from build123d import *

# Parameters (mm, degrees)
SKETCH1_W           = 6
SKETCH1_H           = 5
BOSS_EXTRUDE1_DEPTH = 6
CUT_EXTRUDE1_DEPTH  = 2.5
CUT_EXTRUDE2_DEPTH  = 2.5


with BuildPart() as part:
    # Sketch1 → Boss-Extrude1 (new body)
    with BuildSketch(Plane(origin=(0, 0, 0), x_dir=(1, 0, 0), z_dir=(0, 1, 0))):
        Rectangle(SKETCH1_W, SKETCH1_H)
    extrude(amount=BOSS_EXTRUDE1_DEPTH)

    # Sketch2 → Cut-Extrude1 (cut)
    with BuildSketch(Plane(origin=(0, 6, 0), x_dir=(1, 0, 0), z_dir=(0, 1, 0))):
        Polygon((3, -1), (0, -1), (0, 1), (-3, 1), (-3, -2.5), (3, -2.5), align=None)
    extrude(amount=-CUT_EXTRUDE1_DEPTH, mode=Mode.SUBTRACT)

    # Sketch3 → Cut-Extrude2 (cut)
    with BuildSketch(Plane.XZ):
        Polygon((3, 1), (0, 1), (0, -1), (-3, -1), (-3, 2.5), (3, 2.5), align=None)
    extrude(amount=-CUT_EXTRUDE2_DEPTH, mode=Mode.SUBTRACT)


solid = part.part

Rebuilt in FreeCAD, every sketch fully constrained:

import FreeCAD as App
import Part
import Sketcher

V = App.Vector

doc = App.newDocument("Part")
params = doc.addObject("Spreadsheet::Sheet", "Params")
for row, (alias, value) in enumerate([
    ("sketch1_width", "6 mm"),
    ("sketch1_height", "5 mm"),
    ("pad1_length", "6 mm"),
    ("sketch2_width", "3 mm"),
    ("sketch2_height", "2 mm"),
    ("sketch2_height2", "3.5 mm"),
    ("pocket1_length", "2.5 mm"),
    ("sketch3_width", "3 mm"),
    ("sketch3_height", "2 mm"),
    ("sketch3_height2", "1.5 mm"),
    ("pocket2_length", "2.5 mm"),
], start=1):
    params.set(f"A{row}", alias)
    params.set(f"B{row}", "=" + value)
    params.setAlias(f"B{row}", alias)

body = doc.addObject("PartDesign::Body", "Body")

sketch1 = body.newObject("Sketcher::SketchObject", "Sketch")
sketch1.AttachmentSupport = (doc.getObject("XZ_Plane"), [""])
sketch1.MapMode = "FlatFace"
sketch1.addGeometry([
    Part.LineSegment(V(-3, -2, 0), V(-3, 2, 0)),
    Part.LineSegment(V(-3, 2, 0), V(3, 2, 0)),
    Part.LineSegment(V(3, 2, 0), V(3, -2, 0)),
    Part.LineSegment(V(3, -2, 0), V(-3, -2, 0)),
], False)
sketch1.addConstraint([
    Sketcher.Constraint("Coincident", 0, 2, 1, 1),
    Sketcher.Constraint("Coincident", 1, 2, 2, 1),
    Sketcher.Constraint("Coincident", 2, 2, 3, 1),
    Sketcher.Constraint("Coincident", 3, 2, 0, 1),
    Sketcher.Constraint("Vertical", 0),
    Sketcher.Constraint("Horizontal", 1),
    Sketcher.Constraint("Vertical", 2),
    Sketcher.Constraint("Horizontal", 3),
    Sketcher.Constraint("Symmetric", 0, 2, 2, 2, -1, 1),
    Sketcher.Constraint("DistanceX", 1, 1, 1, 2, 6.0),
    Sketcher.Constraint("DistanceY", 0, 1, 0, 2, 5.0),
])
sketch1.setExpression("Constraints[9]", "Params.sketch1_width")
sketch1.setExpression("Constraints[10]", "Params.sketch1_height")
pad1 = body.newObject("PartDesign::Pad", "Pad")
pad1.Profile = sketch1
pad1.setExpression("Length", "Params.pad1_length")
pad1.Reversed = True

sketch2 = body.newObject("Sketcher::SketchObject", "Sketch001")
sketch2.AttachmentSupport = (doc.getObject("XZ_Plane"), [""])
sketch2.MapMode = "FlatFace"
sketch2.AttachmentOffset = App.Placement(V(0, 0, -6), App.Rotation())
sketch2.addGeometry([
    Part.LineSegment(V(3, 1, 0), V(0, 1, 0)),
    Part.LineSegment(V(0, 1, 0), V(0, -1, 0)),
    Part.LineSegment(V(0, -1, 0), V(-3, -1, 0)),
    Part.LineSegment(V(-3, -1, 0), V(-3, 2.5, 0)),
    Part.LineSegment(V(-3, 2.5, 0), V(3, 2.5, 0)),
    Part.LineSegment(V(3, 2.5, 0), V(3, 1, 0)),
], False)
sketch2.addConstraint([
    Sketcher.Constraint("Coincident", 0, 2, 1, 1),
    Sketcher.Constraint("Coincident", 1, 2, 2, 1),
    Sketcher.Constraint("Coincident", 2, 2, 3, 1),
    Sketcher.Constraint("Coincident", 3, 2, 4, 1),
    Sketcher.Constraint("Coincident", 4, 2, 5, 1),
    Sketcher.Constraint("Coincident", 5, 2, 0, 1),
    Sketcher.Constraint("Horizontal", 0),
    Sketcher.Constraint("Vertical", 1),
    Sketcher.Constraint("Horizontal", 2),
    Sketcher.Constraint("Vertical", 3),
    Sketcher.Constraint("Horizontal", 4),
    Sketcher.Constraint("Vertical", 5),
    Sketcher.Constraint("Symmetric", 0, 2, 1, 2, -1, 1),
    Sketcher.Constraint("Equal", 0, 2),
    Sketcher.Constraint("DistanceX", 0, 2, 0, 1, 3.0),
    Sketcher.Constraint("DistanceY", 1, 2, 1, 1, 2.0),
    Sketcher.Constraint("DistanceY", 3, 1, 3, 2, 3.5),
])
sketch2.setExpression("Constraints[14]", "Params.sketch2_width")
sketch2.setExpression("Constraints[15]", "Params.sketch2_height")
sketch2.setExpression("Constraints[16]", "Params.sketch2_height2")
pocket1 = body.newObject("PartDesign::Pocket", "Pocket")
pocket1.Profile = sketch2
pocket1.setExpression("Length", "Params.pocket1_length")
pocket1.Reversed = True

sketch3 = body.newObject("Sketcher::SketchObject", "Sketch002")
sketch3.AttachmentSupport = (doc.getObject("XZ_Plane"), [""])
sketch3.MapMode = "FlatFace"
sketch3.addGeometry([
    Part.LineSegment(V(0, 1, 0), V(3, 1, 0)),
    Part.LineSegment(V(3, 1, 0), V(3, 2.5, 0)),
    Part.LineSegment(V(3, 2.5, 0), V(-3, 2.5, 0)),
    Part.LineSegment(V(-3, 2.5, 0), V(-3, -1, 0)),
    Part.LineSegment(V(-3, -1, 0), V(0, -1, 0)),
    Part.LineSegment(V(0, -1, 0), V(0, 1, 0)),
], False)
sketch3.addConstraint([
    Sketcher.Constraint("Coincident", 0, 2, 1, 1),
    Sketcher.Constraint("Coincident", 1, 2, 2, 1),
    Sketcher.Constraint("Coincident", 2, 2, 3, 1),
    Sketcher.Constraint("Coincident", 3, 2, 4, 1),
    Sketcher.Constraint("Coincident", 4, 2, 5, 1),
    Sketcher.Constraint("Coincident", 5, 2, 0, 1),
    Sketcher.Constraint("Horizontal", 0),
    Sketcher.Constraint("Vertical", 1),
    Sketcher.Constraint("Horizontal", 2),
    Sketcher.Constraint("Vertical", 3),
    Sketcher.Constraint("Horizontal", 4),
    Sketcher.Constraint("Vertical", 5),
    Sketcher.Constraint("Symmetric", 0, 2, 3, 2, -1, 1),
    Sketcher.Constraint("PointOnObject", 4, 2, -2),
    Sketcher.Constraint("DistanceX", 0, 1, 0, 2, 3.0),
    Sketcher.Constraint("DistanceY", 5, 1, 5, 2, 2.0),
    Sketcher.Constraint("DistanceY", 1, 1, 1, 2, 1.5),
])
sketch3.setExpression("Constraints[14]", "Params.sketch3_width")
sketch3.setExpression("Constraints[15]", "Params.sketch3_height")
sketch3.setExpression("Constraints[16]", "Params.sketch3_height2")
pocket2 = body.newObject("PartDesign::Pocket", "Pocket001")
pocket2.Profile = sketch3
pocket2.setExpression("Length", "Params.pocket2_length")

doc.recompute()
